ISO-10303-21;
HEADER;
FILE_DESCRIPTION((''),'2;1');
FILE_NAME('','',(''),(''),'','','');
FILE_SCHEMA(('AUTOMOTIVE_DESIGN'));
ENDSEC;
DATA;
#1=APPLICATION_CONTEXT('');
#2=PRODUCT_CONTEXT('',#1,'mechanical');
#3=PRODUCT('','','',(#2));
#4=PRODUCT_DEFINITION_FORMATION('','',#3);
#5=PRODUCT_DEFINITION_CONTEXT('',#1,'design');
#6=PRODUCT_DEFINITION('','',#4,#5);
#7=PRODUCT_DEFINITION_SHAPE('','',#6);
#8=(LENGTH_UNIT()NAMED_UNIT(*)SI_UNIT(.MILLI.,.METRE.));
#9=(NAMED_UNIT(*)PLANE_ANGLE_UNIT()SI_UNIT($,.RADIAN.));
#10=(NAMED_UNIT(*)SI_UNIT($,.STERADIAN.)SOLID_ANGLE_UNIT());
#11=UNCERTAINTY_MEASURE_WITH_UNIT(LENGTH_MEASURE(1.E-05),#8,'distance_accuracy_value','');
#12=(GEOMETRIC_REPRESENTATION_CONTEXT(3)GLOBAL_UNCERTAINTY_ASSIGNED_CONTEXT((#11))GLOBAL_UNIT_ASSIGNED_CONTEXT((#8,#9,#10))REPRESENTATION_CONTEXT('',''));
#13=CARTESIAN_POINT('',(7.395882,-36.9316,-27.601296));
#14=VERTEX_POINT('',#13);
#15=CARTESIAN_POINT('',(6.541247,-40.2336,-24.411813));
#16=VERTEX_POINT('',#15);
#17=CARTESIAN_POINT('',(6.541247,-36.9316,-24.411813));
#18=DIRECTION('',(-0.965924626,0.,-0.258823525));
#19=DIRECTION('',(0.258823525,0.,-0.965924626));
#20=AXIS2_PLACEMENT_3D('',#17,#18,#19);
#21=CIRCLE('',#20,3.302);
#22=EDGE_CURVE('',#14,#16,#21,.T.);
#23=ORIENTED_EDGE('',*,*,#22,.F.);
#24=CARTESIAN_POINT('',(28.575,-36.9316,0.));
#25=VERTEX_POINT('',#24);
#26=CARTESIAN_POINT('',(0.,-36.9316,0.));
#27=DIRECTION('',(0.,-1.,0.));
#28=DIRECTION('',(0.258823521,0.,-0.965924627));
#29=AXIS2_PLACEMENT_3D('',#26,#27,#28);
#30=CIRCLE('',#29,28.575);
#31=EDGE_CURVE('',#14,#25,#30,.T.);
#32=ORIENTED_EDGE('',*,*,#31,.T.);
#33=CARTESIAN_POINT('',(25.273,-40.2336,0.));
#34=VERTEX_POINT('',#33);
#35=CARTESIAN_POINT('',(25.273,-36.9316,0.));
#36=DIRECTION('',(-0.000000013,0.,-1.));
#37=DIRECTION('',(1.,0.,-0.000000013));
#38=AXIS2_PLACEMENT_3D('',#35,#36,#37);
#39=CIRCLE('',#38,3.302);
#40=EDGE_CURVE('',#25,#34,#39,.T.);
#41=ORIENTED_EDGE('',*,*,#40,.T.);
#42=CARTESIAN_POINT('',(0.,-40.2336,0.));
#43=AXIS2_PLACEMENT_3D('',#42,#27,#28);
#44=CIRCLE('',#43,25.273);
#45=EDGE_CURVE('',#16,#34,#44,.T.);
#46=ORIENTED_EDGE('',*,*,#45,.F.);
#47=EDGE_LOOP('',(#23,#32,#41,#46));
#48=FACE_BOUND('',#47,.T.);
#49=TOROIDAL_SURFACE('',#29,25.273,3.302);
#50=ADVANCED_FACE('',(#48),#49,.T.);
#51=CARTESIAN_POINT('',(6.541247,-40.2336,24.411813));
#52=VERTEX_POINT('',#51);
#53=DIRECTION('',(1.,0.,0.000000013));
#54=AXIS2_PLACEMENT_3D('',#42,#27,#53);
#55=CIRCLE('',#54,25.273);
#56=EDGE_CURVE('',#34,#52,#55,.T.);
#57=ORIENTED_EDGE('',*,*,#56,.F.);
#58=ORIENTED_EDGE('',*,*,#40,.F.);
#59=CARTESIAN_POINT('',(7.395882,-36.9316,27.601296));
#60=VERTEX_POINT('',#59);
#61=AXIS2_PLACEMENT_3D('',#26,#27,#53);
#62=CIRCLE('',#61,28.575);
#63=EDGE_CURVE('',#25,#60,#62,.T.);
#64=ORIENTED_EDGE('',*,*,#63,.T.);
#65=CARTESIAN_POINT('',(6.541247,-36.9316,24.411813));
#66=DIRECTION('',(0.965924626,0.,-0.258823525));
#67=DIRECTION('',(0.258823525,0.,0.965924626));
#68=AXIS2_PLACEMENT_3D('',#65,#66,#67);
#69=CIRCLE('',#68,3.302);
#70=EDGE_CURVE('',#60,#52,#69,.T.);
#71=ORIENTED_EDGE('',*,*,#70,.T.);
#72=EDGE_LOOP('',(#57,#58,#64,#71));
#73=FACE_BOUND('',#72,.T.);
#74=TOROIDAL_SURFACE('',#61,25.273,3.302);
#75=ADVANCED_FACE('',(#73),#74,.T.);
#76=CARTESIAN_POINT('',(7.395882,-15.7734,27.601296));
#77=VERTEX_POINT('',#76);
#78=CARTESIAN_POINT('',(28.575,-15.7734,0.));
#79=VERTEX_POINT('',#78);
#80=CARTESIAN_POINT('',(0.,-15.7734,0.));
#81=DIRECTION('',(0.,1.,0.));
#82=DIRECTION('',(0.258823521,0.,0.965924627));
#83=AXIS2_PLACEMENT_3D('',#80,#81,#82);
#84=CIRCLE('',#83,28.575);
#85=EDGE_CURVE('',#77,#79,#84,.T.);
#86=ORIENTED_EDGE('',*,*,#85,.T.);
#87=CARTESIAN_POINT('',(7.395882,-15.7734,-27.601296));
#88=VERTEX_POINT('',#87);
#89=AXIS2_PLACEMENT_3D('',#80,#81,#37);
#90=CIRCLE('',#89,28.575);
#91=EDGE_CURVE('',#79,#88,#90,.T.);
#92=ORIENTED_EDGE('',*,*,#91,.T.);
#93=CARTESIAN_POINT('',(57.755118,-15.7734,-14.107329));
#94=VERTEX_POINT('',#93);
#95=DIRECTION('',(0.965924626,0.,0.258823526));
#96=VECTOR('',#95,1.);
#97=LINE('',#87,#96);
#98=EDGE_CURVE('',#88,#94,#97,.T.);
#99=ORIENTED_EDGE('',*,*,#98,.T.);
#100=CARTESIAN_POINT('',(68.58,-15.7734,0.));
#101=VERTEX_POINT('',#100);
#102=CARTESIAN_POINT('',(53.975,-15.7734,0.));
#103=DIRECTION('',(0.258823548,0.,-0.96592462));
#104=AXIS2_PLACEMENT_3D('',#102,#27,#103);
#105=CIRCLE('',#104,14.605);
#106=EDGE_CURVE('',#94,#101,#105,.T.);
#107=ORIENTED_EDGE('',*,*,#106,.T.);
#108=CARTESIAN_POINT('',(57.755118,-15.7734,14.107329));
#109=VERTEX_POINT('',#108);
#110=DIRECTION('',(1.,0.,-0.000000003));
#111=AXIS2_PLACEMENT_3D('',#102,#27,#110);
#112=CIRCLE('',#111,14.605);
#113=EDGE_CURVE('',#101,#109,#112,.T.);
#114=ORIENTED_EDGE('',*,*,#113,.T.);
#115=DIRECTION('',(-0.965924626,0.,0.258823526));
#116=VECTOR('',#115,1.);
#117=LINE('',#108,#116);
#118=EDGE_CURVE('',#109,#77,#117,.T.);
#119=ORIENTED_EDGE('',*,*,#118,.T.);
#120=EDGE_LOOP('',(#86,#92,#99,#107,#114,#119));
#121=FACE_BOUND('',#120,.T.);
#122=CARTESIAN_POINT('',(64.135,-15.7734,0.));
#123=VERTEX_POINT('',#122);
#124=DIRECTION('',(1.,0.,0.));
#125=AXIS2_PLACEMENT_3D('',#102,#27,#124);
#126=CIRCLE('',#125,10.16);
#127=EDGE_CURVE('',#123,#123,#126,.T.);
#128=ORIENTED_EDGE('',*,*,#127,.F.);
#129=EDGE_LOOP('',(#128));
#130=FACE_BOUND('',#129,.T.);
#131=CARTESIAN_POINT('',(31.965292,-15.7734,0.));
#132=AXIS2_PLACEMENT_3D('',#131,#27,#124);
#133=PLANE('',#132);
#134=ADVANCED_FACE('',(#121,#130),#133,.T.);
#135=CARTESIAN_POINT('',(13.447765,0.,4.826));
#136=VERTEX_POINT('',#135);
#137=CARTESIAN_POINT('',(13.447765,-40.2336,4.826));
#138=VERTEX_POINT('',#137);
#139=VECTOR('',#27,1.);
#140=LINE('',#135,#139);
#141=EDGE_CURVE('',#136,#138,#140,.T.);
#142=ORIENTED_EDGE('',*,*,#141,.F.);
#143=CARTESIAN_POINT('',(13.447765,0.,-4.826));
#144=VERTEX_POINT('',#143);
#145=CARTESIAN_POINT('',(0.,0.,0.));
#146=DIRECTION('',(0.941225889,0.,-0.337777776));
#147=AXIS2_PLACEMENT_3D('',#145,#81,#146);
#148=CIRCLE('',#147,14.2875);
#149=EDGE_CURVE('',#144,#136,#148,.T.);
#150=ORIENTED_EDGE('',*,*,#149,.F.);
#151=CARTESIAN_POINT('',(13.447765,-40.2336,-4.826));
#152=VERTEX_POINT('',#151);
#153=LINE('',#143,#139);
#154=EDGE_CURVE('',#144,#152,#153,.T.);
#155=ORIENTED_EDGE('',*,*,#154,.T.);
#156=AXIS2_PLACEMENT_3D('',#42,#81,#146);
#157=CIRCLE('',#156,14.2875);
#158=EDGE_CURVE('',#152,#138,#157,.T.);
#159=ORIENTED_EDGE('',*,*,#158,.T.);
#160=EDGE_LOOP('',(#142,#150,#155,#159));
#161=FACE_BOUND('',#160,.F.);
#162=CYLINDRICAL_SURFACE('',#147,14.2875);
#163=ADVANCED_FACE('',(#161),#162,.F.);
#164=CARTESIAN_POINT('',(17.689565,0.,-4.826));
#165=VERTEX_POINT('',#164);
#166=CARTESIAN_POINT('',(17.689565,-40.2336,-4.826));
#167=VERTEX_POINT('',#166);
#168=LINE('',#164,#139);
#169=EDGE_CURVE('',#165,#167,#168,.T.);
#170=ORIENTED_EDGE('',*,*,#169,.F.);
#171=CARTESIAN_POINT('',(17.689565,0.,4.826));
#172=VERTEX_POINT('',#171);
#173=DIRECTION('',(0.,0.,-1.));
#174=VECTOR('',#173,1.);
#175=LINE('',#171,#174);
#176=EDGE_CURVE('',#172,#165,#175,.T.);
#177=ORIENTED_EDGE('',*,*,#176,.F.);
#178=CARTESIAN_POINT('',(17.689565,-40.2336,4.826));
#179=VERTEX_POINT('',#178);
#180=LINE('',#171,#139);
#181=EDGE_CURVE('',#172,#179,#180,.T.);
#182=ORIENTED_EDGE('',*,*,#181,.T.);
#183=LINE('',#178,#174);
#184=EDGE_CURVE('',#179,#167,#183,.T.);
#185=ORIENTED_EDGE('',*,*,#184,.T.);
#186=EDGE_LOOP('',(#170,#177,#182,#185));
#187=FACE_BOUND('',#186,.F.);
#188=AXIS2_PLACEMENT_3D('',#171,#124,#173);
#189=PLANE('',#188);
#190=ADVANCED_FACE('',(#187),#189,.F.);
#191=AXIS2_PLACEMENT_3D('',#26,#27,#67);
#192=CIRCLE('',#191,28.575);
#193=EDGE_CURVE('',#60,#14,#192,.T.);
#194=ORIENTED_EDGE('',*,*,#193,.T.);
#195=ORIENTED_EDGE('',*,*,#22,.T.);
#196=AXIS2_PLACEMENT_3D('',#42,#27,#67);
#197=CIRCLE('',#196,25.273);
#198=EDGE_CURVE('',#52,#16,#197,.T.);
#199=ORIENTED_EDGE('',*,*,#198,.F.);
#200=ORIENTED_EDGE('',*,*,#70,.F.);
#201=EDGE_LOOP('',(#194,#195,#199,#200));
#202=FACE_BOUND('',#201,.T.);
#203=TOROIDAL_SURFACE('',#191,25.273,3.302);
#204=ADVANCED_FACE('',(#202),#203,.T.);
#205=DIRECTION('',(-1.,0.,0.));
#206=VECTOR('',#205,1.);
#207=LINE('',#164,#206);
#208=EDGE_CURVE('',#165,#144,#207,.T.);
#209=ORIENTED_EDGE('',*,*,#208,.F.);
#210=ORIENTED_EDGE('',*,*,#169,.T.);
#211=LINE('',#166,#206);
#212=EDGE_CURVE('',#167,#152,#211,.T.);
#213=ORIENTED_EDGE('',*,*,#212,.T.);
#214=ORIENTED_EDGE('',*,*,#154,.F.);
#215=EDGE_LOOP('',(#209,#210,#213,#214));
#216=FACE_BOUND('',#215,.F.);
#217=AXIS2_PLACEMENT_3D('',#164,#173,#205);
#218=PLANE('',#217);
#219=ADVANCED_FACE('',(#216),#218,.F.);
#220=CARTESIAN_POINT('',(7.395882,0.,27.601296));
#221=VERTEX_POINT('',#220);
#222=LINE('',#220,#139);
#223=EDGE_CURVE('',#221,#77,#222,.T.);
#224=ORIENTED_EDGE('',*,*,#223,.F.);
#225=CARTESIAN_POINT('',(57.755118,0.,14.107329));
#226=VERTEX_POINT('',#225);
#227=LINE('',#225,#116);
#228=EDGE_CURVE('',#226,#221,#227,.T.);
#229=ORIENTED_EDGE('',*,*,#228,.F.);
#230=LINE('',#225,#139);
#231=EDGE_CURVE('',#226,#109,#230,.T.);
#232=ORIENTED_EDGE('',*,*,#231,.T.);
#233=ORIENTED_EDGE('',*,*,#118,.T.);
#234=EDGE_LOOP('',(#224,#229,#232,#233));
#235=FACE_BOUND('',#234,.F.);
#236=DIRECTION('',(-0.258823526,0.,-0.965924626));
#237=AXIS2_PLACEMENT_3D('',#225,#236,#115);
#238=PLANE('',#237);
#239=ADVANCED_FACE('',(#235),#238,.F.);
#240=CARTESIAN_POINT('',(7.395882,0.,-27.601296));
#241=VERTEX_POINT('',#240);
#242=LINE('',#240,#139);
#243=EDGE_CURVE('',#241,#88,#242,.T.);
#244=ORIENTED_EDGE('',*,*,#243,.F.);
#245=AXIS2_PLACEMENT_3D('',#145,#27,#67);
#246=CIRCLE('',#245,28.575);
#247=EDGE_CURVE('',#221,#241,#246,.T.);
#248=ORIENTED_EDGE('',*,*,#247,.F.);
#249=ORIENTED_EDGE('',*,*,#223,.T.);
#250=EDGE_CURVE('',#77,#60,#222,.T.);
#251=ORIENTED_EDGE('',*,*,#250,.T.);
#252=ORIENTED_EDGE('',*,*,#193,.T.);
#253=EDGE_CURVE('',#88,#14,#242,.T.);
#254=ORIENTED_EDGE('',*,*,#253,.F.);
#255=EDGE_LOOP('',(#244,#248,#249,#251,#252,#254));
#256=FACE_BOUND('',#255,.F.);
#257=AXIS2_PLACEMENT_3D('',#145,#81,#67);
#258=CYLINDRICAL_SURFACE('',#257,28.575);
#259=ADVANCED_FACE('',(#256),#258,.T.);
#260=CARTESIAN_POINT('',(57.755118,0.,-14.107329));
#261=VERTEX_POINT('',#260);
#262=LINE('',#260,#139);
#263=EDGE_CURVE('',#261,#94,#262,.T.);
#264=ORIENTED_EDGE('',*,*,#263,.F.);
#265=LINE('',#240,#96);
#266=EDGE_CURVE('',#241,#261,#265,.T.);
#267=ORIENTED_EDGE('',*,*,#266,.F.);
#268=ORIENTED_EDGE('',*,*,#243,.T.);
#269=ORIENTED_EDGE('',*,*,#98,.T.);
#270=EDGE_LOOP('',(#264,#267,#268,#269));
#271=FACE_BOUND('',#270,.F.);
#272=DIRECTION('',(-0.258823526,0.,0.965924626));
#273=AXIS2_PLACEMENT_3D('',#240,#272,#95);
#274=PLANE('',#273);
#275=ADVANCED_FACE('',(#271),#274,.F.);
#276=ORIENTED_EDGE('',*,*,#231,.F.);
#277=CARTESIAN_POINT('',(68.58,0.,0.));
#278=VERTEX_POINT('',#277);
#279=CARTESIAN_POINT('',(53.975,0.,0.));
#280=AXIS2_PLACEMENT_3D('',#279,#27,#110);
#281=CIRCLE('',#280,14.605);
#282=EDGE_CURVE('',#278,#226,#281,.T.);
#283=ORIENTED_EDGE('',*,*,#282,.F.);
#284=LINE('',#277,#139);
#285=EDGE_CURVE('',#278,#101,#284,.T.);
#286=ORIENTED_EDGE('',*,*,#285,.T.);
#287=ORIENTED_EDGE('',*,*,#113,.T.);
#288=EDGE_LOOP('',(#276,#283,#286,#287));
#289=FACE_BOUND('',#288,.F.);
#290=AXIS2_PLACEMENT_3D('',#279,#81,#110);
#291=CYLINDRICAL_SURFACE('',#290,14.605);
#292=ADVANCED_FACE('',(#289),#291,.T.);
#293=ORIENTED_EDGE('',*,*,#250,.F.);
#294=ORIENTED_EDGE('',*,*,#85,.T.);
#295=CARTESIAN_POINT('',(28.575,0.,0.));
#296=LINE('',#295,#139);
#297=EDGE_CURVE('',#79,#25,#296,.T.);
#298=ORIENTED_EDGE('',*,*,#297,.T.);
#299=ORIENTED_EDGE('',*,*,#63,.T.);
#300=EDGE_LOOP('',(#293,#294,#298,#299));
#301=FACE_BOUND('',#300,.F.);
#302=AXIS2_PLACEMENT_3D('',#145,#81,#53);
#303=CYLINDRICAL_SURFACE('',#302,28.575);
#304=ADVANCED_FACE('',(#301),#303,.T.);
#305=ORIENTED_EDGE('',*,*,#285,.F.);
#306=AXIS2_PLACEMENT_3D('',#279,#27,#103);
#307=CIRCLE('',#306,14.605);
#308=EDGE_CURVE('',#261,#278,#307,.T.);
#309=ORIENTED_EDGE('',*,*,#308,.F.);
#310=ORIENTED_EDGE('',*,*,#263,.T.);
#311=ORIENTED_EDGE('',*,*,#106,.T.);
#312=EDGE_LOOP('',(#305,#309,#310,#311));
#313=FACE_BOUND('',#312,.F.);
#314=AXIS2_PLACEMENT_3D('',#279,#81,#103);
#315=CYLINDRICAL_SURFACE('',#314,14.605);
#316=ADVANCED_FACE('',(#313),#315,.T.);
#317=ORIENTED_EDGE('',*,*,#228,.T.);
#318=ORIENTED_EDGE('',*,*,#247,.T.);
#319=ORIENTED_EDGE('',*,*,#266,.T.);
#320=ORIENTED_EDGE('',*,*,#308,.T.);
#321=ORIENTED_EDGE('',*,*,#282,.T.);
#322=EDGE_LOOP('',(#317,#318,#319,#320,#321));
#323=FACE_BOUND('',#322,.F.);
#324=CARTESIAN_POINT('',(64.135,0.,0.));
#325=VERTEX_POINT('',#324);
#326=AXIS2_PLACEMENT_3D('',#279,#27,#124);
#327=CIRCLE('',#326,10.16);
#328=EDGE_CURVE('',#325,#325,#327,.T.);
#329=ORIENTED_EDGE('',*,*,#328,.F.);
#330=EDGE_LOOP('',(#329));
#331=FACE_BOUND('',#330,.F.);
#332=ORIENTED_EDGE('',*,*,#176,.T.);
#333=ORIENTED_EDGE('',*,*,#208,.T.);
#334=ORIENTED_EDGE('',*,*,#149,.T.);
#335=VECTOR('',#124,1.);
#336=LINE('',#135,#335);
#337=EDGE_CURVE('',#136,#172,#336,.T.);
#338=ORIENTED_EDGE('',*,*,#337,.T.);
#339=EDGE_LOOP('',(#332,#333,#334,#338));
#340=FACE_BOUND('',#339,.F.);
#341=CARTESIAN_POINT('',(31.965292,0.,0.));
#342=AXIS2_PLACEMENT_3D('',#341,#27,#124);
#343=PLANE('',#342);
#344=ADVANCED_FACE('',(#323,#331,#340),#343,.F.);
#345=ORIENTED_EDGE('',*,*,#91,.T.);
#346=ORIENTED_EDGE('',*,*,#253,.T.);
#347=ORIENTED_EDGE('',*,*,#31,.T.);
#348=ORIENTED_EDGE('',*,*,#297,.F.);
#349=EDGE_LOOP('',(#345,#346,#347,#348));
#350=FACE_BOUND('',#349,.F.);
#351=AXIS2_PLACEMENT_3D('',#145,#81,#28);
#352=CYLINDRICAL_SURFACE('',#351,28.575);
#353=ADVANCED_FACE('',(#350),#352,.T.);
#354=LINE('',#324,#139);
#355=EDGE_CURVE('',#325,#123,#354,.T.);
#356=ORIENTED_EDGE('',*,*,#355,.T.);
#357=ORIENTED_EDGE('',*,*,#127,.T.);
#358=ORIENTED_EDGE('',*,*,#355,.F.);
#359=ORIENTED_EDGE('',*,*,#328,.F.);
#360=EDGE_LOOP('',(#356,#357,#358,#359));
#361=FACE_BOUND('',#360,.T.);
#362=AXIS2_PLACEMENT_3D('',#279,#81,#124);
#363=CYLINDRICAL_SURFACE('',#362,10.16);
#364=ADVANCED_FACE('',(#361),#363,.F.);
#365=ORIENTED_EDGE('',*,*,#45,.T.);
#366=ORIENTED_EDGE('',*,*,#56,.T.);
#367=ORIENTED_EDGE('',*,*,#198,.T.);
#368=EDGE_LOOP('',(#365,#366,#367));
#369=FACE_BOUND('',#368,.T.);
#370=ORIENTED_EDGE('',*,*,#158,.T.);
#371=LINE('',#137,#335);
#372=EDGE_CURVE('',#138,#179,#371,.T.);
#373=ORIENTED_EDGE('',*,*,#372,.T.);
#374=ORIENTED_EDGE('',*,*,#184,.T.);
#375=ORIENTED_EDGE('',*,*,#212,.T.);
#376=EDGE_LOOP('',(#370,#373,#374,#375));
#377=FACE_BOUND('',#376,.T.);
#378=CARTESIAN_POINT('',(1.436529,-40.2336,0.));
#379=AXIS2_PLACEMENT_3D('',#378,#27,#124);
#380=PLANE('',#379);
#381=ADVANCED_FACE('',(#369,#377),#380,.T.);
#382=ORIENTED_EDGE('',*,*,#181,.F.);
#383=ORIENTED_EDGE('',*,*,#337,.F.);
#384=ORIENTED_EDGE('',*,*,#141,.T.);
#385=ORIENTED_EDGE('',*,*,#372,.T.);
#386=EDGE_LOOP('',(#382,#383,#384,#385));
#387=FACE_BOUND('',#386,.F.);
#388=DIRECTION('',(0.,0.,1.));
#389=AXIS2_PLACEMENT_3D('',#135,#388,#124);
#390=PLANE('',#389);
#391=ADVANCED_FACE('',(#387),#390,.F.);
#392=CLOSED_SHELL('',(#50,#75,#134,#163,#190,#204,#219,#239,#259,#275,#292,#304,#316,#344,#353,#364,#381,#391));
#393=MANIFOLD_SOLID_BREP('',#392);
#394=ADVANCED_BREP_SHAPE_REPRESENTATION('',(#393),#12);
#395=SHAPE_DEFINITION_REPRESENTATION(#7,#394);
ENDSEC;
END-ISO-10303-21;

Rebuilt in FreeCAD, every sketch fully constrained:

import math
import FreeCAD as App
import Part
import Sketcher
from FreeCAD import Vector
Q = App.Units.Quantity


def edges_at(feature, points):
    """Names of the edges that pass closest to the given points."""
    edges = feature.Shape.Edges
    near = lambda p: min(range(len(edges)), key=lambda i: edges[i].distToShape(Part.Vertex(*p))[0])
    return sorted({f"Edge{near(p) + 1}" for p in points})

doc = App.newDocument("Part")
params = doc.addObject("Spreadsheet::Sheet", "Params")
for row, (alias, value) in enumerate([
    ("sketch1_radius", "1.125 in"),
    ("sketch1_radius2", "0.5625 in"),
    ("sketch1_height", "0.38 in"),
    ("sketch1_width", "0.167 in"),
    ("pad1_length", "1.584 in"),
    ("sketch2_diameter", "0.8 in"),
    ("sketch2_radius", "1.125 in"),
    ("sketch2_radius2", "0.575 in"),
    ("pad2_length", "0.621 in"),
    ("fillet_radius", "0.13 in"),
], start=1):
    params.set(f"A{row}", alias)
    params.set(f"B{row}", "=" + value)
    params.setAlias(f"B{row}", alias)

body = doc.addObject("PartDesign::Body", "Body")

sketch1 = body.newObject("Sketcher::SketchObject", "Sketch")
sketch1.AttachmentSupport = (doc.getObject("XZ_Plane"), [""])
sketch1.MapMode = "FlatFace"
sketch1.addGeometry(Part.ArcOfCircle(Part.Circle(Vector(0, 0, 0), Vector(0, 0, 1), 28.575), math.radians(-74.999734), math.radians(-0.000001)), False)
sketch1.addGeometry(Part.ArcOfCircle(Part.Circle(Vector(0, 0, 0), Vector(0, 0, 1), 28.575), math.radians(0.000001), math.radians(74.999734)), False)
sketch1.addGeometry(Part.ArcOfCircle(Part.Circle(Vector(0, 0, 0), Vector(0, 0, 1), 28.575), math.radians(74.999734), math.radians(285.000266)), False)
sketch1.addGeometry(Part.LineSegment(Vector(17.689565, -4.826, 0), Vector(13.447765, -4.826, 0)), False)
sketch1.addGeometry(Part.ArcOfCircle(Part.Circle(Vector(0, 0, 0), Vector(0, 0, 1), 14.2875), math.radians(19.741542), math.radians(340.258458)), False)
sketch1.addGeometry(Part.LineSegment(Vector(13.447765, 4.826, 0), Vector(17.689565, 4.826, 0)), False)
sketch1.addGeometry(Part.LineSegment(Vector(17.689565, 4.826, 0), Vector(17.689565, -4.826, 0)), False)
sketch1.addConstraint(Sketcher.Constraint("Tangent", 0, 2, 1, 1))
sketch1.addConstraint(Sketcher.Constraint("Tangent", 1, 2, 2, 1))
sketch1.addConstraint(Sketcher.Constraint("Tangent", 2, 2, 0, 1))
sketch1.addConstraint(Sketcher.Constraint("Coincident", 3, 2, 4, 2))
sketch1.addConstraint(Sketcher.Constraint("Coincident", 4, 1, 5, 1))
sketch1.addConstraint(Sketcher.Constraint("Coincident", 5, 2, 6, 1))
sketch1.addConstraint(Sketcher.Constraint("Coincident", 6, 2, 3, 1))
sketch1.addConstraint(Sketcher.Constraint("Horizontal", 3))
sketch1.addConstraint(Sketcher.Constraint("Horizontal", 5))
sketch1.addConstraint(Sketcher.Constraint("Vertical", 6))
sketch1.addConstraint(Sketcher.Constraint("Coincident", 0, 3, -1, 1))
sketch1.addConstraint(Sketcher.Constraint("Coincident", 4, 3, -1, 1))
sketch1.addConstraint(Sketcher.Constraint("PointOnObject", 0, 2, -1))
sketch1.addConstraint(Sketcher.Constraint("Vertical", 1, 2, 2, 2))
sketch1.addConstraint(Sketcher.Constraint("Vertical", 3, 2, 4, 1))
sketch1.addConstraint(Sketcher.Constraint("Radius", 0, Q("1.125 in")))
sketch1.addConstraint(Sketcher.Constraint("Radius", 4, Q("0.5625 in")))
sketch1.addConstraint(Sketcher.Constraint("DistanceY", 6, 2, 6, 1, Q("0.38 in")))
sketch1.addConstraint(Sketcher.Constraint("DistanceX", 3, 2, 3, 1, Q("0.167 in")))
sketch1.addConstraint(Sketcher.Constraint("DistanceX", -1, 1, 2, 2, 7.395882))
sketch1.setExpression("Constraints[15]", "Params.sketch1_radius")
sketch1.setExpression("Constraints[16]", "Params.sketch1_radius2")
sketch1.setExpression("Constraints[17]", "Params.sketch1_height")
sketch1.setExpression("Constraints[18]", "Params.sketch1_width")
pad1 = body.newObject("PartDesign::Pad", "Pad")
pad1.Profile = sketch1
pad1.setExpression("Length", "Params.pad1_length")

sketch2 = body.newObject("Sketcher::SketchObject", "Sketch001")
sketch2.AttachmentSupport = (doc.getObject("XZ_Plane"), [""])
sketch2.MapMode = "FlatFace"
sketch2.addGeometry(Part.ArcOfCircle(Part.Circle(Vector(0, 0, 0), Vector(0, 0, 1), 28.575), math.radians(0.000001), math.radians(74.999734)), False)
sketch2.addGeometry(Part.ArcOfCircle(Part.Circle(Vector(0, 0, 0), Vector(0, 0, 1), 28.575), math.radians(-74.999734), math.radians(-0.000001)), False)
sketch2.addGeometry(Part.LineSegment(Vector(7.395882, -27.601296, 0), Vector(57.755118, -14.107329, 0)), False)
sketch2.addGeometry(Part.ArcOfCircle(Part.Circle(Vector(53.975, 0, 0), Vector(0, 0, 1), 14.605), math.radians(-74.999733), math.radians(0)), False)
sketch2.addGeometry(Part.ArcOfCircle(Part.Circle(Vector(53.975, 0, 0), Vector(0, 0, 1), 14.605), math.radians(0), math.radians(74.999733)), False)
sketch2.addGeometry(Part.LineSegment(Vector(57.755118, 14.107329, 0), Vector(7.395882, 27.601296, 0)), False)
sketch2.addGeometry(Part.Circle(Vector(53.975, 0, 0), Vector(0, 0, 1), 10.16), False)
sketch2.addConstraint(Sketcher.Constraint("Tangent", 0, 1, 1, 2))
sketch2.addConstraint(Sketcher.Constraint("Tangent", 1, 1, 2, 1))
sketch2.addConstraint(Sketcher.Constraint("Tangent", 2, 2, 3, 1))
sketch2.addConstraint(Sketcher.Constraint("Tangent", 3, 2, 4, 1))
sketch2.addConstraint(Sketcher.Constraint("Tangent", 4, 2, 5, 1))
sketch2.addConstraint(Sketcher.Constraint("Tangent", 5, 2, 0, 2))
sketch2.addConstraint(Sketcher.Constraint("Coincident", 0, 3, -1, 1))
sketch2.addConstraint(Sketcher.Constraint("Coincident", 6, 3, 3, 3))
sketch2.addConstraint(Sketcher.Constraint("Equal", 0, 1))
sketch2.addConstraint(Sketcher.Constraint("Equal", 3, 4))
sketch2.addConstraint(Sketcher.Constraint("PointOnObject", 3, 3, -1))
sketch2.addConstraint(Sketcher.Constraint("PointOnObject", 0, 1, -1))
sketch2.addConstraint(Sketcher.Constraint("PointOnObject", 3, 2, -1))
sketch2.addConstraint(Sketcher.Constraint("Diameter", 6, Q("0.8 in")))
sketch2.addConstraint(Sketcher.Constraint("Radius", 0, Q("1.125 in")))
sketch2.addConstraint(Sketcher.Constraint("Radius", 3, Q("0.575 in")))
sketch2.addConstraint(Sketcher.Constraint("DistanceX", 0, 1, 6, 3, Q("1 in")))
sketch2.setExpression("Constraints[13]", "Params.sketch2_diameter")
sketch2.setExpression("Constraints[14]", "Params.sketch2_radius")
sketch2.setExpression("Constraints[15]", "Params.sketch2_radius2")
pad2 = body.newObject("PartDesign::Pad", "Pad001")
pad2.Profile = sketch2
pad2.setExpression("Length", "Params.pad2_length")
doc.recompute()

fillet = body.newObject("PartDesign::Fillet", "Fillet")
fillet.Base = (pad2, edges_at(pad2, [(-28.575, -40.234, 0)]))
fillet.setExpression("Radius", "Params.fillet_radius")

doc.recompute()
